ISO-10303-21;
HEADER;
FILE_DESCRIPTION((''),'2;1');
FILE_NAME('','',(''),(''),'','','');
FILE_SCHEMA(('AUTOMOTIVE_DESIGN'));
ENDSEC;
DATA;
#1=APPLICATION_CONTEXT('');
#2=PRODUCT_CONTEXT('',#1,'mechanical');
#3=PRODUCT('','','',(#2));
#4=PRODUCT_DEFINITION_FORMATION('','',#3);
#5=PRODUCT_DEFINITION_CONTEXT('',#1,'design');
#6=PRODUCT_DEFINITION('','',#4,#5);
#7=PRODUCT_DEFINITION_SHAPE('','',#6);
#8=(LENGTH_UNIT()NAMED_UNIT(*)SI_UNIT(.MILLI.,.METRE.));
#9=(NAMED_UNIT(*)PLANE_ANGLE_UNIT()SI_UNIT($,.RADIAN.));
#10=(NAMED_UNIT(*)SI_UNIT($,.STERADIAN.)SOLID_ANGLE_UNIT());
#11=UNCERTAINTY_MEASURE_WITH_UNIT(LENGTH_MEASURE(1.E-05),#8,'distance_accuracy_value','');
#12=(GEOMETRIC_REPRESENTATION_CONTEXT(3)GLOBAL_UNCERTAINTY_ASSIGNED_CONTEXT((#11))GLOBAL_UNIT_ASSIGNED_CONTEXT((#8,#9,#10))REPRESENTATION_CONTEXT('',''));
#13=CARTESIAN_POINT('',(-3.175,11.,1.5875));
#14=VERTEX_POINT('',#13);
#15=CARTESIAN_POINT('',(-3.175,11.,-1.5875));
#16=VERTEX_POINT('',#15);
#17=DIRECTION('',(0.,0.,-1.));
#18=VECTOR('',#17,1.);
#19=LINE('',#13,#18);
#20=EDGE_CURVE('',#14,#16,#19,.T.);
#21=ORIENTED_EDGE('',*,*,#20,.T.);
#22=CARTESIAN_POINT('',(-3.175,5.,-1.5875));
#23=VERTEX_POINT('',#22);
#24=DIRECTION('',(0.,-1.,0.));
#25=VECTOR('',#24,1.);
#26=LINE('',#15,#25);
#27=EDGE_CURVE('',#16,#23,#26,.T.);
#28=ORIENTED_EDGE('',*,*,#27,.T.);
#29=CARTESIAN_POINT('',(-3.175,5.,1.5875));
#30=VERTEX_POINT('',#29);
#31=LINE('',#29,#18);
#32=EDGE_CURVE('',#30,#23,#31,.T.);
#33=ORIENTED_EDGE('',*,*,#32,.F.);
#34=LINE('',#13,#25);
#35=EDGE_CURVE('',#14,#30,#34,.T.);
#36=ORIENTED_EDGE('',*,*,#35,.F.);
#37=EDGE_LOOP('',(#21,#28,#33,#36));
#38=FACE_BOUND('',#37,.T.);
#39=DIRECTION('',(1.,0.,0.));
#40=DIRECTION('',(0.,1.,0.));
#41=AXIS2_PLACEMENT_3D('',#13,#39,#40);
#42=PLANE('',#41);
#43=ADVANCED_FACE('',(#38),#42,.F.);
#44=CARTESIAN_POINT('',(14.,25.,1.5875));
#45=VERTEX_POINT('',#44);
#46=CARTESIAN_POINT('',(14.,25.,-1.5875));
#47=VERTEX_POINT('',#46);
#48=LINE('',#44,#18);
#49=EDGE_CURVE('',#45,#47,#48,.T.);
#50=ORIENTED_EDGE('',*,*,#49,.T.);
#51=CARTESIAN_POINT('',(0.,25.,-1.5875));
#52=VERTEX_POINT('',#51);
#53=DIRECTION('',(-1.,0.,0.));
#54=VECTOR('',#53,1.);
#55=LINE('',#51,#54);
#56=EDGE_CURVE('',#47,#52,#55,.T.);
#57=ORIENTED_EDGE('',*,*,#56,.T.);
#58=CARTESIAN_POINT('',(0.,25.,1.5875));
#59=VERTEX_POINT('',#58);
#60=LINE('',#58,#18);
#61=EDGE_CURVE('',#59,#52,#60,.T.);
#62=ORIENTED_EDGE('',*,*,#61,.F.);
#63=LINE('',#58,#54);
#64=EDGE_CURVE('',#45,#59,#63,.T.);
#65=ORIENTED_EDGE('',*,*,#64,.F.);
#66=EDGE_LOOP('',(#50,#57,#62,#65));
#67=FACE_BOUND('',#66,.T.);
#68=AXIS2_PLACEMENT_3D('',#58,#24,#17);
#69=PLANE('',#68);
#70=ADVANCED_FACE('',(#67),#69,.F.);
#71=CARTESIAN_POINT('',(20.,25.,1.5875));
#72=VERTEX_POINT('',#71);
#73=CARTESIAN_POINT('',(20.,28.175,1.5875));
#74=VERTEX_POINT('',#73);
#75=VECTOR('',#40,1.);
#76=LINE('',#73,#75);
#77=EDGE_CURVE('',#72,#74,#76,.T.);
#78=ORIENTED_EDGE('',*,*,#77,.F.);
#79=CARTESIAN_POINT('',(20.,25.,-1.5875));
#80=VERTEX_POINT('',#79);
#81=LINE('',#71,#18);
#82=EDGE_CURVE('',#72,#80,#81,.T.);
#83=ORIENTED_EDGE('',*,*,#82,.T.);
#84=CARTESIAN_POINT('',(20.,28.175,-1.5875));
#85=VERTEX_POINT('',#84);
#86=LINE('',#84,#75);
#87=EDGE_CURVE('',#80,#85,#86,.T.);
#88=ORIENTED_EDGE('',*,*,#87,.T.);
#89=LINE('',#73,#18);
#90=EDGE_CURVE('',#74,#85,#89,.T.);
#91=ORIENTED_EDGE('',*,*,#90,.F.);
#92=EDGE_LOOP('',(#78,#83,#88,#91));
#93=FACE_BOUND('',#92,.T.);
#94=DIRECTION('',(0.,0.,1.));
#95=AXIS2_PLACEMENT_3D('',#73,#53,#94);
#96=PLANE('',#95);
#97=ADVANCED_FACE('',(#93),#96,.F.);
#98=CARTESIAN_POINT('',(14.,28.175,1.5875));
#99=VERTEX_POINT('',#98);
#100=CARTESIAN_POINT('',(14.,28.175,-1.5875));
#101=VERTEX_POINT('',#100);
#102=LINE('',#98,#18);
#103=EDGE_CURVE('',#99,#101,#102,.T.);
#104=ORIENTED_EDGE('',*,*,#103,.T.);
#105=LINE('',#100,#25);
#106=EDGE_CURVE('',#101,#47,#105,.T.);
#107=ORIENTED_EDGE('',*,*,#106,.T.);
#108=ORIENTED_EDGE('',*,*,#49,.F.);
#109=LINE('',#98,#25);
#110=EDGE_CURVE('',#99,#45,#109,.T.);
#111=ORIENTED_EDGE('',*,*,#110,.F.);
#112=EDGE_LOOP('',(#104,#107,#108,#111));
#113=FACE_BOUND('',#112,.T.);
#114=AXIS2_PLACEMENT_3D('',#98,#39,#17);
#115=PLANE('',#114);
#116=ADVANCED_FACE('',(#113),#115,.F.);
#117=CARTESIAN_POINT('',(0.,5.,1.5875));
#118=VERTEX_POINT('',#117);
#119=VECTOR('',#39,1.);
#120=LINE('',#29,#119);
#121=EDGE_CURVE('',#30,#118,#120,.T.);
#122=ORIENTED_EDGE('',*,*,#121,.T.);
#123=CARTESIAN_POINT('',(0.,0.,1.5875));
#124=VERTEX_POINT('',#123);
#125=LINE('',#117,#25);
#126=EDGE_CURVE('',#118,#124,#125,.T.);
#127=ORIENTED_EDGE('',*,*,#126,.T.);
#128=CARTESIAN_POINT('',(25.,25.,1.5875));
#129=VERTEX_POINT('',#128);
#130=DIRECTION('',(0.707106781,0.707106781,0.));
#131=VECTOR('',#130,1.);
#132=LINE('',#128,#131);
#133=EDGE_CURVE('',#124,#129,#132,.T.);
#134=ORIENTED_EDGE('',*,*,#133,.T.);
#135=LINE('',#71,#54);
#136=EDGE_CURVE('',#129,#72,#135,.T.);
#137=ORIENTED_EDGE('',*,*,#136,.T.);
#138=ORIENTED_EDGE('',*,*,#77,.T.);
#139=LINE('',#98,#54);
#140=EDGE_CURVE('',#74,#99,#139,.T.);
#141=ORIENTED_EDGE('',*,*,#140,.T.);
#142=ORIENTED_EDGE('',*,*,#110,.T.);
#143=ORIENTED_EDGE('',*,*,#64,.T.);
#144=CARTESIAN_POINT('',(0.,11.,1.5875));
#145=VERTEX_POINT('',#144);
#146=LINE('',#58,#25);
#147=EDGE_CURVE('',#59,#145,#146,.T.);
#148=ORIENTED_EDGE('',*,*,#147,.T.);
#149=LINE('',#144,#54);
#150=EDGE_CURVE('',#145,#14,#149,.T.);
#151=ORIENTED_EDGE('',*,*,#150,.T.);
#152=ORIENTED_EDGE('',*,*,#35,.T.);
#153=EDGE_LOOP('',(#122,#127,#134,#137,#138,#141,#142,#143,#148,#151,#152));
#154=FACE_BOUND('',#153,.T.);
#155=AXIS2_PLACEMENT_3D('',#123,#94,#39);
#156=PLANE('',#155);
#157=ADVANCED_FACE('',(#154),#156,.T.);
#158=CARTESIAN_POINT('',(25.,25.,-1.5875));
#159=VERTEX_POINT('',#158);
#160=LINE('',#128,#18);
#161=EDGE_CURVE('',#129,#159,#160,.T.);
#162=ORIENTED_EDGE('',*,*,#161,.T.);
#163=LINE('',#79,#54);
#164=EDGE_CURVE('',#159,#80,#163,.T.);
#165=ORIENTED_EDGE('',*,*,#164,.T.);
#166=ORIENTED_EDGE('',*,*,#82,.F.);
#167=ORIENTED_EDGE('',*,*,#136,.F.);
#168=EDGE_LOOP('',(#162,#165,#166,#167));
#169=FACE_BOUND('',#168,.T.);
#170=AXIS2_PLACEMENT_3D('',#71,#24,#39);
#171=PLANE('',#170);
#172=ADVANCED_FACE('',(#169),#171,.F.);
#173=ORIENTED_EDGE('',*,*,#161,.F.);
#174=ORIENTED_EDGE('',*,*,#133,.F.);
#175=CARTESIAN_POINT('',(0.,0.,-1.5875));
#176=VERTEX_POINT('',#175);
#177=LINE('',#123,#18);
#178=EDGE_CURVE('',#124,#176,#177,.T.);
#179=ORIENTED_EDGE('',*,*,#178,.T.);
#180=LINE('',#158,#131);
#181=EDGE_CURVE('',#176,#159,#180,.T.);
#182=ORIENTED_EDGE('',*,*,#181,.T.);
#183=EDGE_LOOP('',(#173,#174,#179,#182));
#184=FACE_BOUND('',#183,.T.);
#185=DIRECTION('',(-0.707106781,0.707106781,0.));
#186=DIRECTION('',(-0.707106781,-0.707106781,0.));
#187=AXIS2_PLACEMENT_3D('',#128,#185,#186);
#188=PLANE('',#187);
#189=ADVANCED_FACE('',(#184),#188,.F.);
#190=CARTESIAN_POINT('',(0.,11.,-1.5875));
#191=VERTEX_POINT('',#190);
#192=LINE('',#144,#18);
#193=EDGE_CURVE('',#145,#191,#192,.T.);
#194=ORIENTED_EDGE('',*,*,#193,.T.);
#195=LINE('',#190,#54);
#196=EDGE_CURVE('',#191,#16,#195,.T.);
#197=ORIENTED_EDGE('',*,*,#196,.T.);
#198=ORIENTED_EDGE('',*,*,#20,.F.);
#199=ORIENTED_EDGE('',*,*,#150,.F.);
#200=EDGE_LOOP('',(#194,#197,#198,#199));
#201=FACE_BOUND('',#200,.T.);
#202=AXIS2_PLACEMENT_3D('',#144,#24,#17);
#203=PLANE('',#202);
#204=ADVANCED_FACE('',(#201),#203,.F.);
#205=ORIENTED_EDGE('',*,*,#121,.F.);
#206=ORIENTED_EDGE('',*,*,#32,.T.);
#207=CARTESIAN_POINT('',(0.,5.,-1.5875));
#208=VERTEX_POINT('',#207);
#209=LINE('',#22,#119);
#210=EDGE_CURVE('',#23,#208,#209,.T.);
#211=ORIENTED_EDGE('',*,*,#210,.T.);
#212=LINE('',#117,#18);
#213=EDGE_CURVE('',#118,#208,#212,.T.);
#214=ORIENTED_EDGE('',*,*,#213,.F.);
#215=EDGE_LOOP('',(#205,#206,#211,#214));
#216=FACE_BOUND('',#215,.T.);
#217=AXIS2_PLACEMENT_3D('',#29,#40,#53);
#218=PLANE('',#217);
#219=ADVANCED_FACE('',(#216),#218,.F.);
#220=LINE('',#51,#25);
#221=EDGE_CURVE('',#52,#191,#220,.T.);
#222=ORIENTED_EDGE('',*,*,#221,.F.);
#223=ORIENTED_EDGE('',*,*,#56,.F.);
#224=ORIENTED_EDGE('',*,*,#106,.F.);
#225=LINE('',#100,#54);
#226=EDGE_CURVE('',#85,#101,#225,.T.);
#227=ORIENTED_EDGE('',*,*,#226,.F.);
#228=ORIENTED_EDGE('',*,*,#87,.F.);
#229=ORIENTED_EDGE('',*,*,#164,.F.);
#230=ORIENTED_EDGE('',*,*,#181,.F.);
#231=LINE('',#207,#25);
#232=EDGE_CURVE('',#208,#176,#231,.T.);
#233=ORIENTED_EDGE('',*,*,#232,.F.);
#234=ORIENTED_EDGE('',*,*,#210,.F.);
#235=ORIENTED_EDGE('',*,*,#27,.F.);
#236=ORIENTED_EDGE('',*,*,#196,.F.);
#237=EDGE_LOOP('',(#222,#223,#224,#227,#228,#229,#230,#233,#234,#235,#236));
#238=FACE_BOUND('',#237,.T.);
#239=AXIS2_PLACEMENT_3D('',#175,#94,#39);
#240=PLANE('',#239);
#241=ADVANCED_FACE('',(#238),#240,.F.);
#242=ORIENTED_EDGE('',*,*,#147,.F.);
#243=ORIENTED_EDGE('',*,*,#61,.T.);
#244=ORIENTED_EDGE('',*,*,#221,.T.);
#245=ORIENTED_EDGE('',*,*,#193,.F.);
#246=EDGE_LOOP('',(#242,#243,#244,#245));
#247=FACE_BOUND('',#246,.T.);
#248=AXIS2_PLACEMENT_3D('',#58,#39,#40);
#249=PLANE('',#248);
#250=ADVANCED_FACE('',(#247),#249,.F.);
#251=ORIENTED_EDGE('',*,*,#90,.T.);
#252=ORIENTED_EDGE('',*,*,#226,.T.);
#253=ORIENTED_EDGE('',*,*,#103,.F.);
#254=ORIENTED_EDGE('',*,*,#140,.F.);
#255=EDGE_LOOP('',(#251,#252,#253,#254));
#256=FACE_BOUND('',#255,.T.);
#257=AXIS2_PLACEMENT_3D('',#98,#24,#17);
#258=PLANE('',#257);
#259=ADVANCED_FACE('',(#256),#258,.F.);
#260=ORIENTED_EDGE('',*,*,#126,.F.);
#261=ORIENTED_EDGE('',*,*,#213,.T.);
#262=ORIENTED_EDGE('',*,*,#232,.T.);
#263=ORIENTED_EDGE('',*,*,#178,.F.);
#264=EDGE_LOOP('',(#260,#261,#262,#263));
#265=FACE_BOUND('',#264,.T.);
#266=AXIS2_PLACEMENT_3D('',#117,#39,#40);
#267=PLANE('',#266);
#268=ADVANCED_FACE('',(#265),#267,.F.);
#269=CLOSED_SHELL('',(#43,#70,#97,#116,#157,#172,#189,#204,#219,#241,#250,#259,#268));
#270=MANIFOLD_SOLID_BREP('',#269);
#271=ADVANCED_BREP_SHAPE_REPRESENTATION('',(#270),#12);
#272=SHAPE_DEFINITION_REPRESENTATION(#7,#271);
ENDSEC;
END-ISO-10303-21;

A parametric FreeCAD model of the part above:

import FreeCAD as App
import Part
import Sketcher
from FreeCAD import Vector


def add_polygon(sketch, points):
    """Adds a closed chain of lines whose ends are joined by coincident constraints."""
    first, n = sketch.GeometryCount, len(points)
    for a, b in zip(points, points[1:] + points[:1]):
        sketch.addGeometry(Part.LineSegment(App.Vector(*a, 0), App.Vector(*b, 0)), False)
    for i in range(n):
        sketch.addConstraint(Sketcher.Constraint("Coincident", first + i, 2, first + (i + 1) % n, 1))

doc = App.newDocument("Part")
params = doc.addObject("Spreadsheet::Sheet", "Params")
for row, (alias, value) in enumerate([
    ("sketch1_width", "5 mm"),
    ("sketch1_width2", "6 mm"),
    ("sketch1_width3", "14 mm"),
    ("pad1_length", "3.175 mm"),
], start=1):
    params.set(f"A{row}", alias)
    params.set(f"B{row}", "=" + value)
    params.setAlias(f"B{row}", alias)

body = doc.addObject("PartDesign::Body", "Body")

# Sketch on XY plane
sketch1 = doc.addObject("Sketcher::SketchObject", "Sketch")
body.addObject(sketch1)
sketch1.AttachmentSupport = (doc.XY_Plane, [""])
sketch1.MapMode = "FlatFace"
add_polygon(sketch1, [(0, 25), (0, 11), (-3.2, 11), (-3.2, 5), (0, 5), (0, 0), (25, 25), (20, 25), (20, 28.2), (14, 28.2), (14, 25)])  # lines 0-10
sketch1.addConstraint([
    Sketcher.Constraint("Vertical", 0),
    Sketcher.Constraint("Horizontal", 1),
    Sketcher.Constraint("Vertical", 2),
    Sketcher.Constraint("Horizontal", 3),
    Sketcher.Constraint("Vertical", 4),
    Sketcher.Constraint("Horizontal", 6),
    Sketcher.Constraint("Vertical", 7),
    Sketcher.Constraint("Horizontal", 8),
    Sketcher.Constraint("Vertical", 9),
    Sketcher.Constraint("Horizontal", 10),
    Sketcher.Constraint("Coincident", 4, 2, -1, 1),
    Sketcher.Constraint("PointOnObject", 0, 2, -2),
    Sketcher.Constraint("Horizontal", 6, 2, 9, 2),
    Sketcher.Constraint("Equal", 10, 0),
    Sketcher.Constraint("Equal", 8, 2),
    Sketcher.Constraint("Equal", 6, 4),
    Sketcher.Constraint("Equal", 3, 7),
    Sketcher.Constraint("DistanceX", 6, 2, 6, 1, 5.0),
    Sketcher.Constraint("DistanceX", 8, 2, 8, 1, 6.0),
    Sketcher.Constraint("DistanceX", 10, 2, 10, 1, 14.0),
    Sketcher.Constraint("DistanceX", 1, 2, 1, 1, 3.175),
])
sketch1.setExpression("Constraints[28]", "Params.sketch1_width")
sketch1.setExpression("Constraints[29]", "Params.sketch1_width2")
sketch1.setExpression("Constraints[30]", "Params.sketch1_width3")
pad1 = doc.addObject("PartDesign::Pad", "Pad")
body.addObject(pad1)
pad1.Profile = sketch1
pad1.setExpression("Length", "Params.pad1_length")
pad1.Midplane = True

doc.recompute()
